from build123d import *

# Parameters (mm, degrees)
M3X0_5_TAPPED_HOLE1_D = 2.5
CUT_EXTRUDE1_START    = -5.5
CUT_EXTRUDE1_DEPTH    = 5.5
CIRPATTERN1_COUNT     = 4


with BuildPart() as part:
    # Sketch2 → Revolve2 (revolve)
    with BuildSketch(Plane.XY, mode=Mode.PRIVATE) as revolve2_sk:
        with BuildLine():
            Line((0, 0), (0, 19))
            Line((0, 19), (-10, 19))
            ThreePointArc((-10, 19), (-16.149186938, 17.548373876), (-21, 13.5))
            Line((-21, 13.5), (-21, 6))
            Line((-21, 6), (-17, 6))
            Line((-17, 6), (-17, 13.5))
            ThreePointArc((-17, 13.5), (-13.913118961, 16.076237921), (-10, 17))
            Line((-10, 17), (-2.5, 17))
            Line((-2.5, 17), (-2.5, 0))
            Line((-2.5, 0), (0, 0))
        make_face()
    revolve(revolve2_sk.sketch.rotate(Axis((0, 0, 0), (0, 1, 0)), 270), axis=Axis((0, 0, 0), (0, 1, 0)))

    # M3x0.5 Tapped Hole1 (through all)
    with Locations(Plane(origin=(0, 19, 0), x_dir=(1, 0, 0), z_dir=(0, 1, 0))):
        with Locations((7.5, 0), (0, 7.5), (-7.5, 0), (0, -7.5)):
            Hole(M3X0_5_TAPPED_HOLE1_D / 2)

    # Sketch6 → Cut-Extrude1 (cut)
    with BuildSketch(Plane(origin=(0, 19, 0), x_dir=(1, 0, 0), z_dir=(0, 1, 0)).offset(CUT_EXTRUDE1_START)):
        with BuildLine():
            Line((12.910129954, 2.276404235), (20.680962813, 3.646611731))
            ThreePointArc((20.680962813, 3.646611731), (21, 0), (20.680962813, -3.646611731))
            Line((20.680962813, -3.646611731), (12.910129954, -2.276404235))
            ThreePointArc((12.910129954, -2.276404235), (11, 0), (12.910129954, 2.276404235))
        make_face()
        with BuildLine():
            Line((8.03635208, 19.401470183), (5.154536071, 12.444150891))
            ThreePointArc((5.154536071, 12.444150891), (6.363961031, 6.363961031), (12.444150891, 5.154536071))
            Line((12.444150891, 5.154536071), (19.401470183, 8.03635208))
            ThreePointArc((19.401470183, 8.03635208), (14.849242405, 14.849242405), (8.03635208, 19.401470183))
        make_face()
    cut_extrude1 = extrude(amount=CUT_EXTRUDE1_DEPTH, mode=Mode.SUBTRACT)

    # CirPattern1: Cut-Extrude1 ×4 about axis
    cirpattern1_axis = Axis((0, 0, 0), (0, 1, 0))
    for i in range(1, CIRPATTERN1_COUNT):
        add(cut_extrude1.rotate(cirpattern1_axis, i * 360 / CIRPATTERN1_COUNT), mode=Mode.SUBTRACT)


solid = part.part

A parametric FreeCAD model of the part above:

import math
import FreeCAD as App
import Part
import Sketcher
from FreeCAD import Vector
Q = App.Units.Quantity

doc = App.newDocument("Part")
body = doc.addObject("PartDesign::Body", "Body")

# Sketch on XY plane
sketch1 = body.newObject("Sketcher::SketchObject", "Sketch")
sketch1.AttachmentSupport = (doc.getObject("XY_Plane"), [""])
sketch1.MapMode = "FlatFace"
sketch1.addGeometry(Part.LineSegment(Vector(0, 0, 0), Vector(0, 19, 0)), False)
sketch1.addGeometry(Part.LineSegment(Vector(0, 19, 0), Vector(-10, 19, 0)), False)
sketch1.addGeometry(Part.ArcOfCircle(Part.Circle(Vector(-10, 5.2, 0), Vector(0, 0, 1), 13.8), math.radians(90), math.radians(143)), False)
sketch1.addGeometry(Part.LineSegment(Vector(-21, 13.5, 0), Vector(-21, 6, 0)), False)
sketch1.addGeometry(Part.LineSegment(Vector(-21, 6, 0), Vector(-17, 6, 0)), False)
sketch1.addGeometry(Part.LineSegment(Vector(-17, 6, 0), Vector(-17, 13.5, 0)), False)
sketch1.addGeometry(Part.ArcOfCircle(Part.Circle(Vector(-10, 8.2, 0), Vector(0, 0, 1), 8.8), math.radians(90), math.radians(143)), False)
sketch1.addGeometry(Part.LineSegment(Vector(-10, 17, 0), Vector(-2.5, 17, 0)), False)
sketch1.addGeometry(Part.LineSegment(Vector(-2.5, 17, 0), Vector(-2.5, 0, 0)), False)
sketch1.addGeometry(Part.LineSegment(Vector(-2.5, 0, 0), Vector(0, 0, 0)), False)
sketch1.addConstraint(Sketcher.Constraint("Coincident", 0, 2, 1, 1))
sketch1.addConstraint(Sketcher.Constraint("Tangent", 1, 2, 2, 1))
sketch1.addConstraint(Sketcher.Constraint("Coincident", 2, 2, 3, 1))
sketch1.addConstraint(Sketcher.Constraint("Coincident", 3, 2, 4, 1))
sketch1.addConstraint(Sketcher.Constraint("Coincident", 4, 2, 5, 1))
sketch1.addConstraint(Sketcher.Constraint("Coincident", 5, 2, 6, 2))
sketch1.addConstraint(Sketcher.Constraint("Tangent", 6, 1, 7, 1))
sketch1.addConstraint(Sketcher.Constraint("Coincident", 7, 2, 8, 1))
sketch1.addConstraint(Sketcher.Constraint("Coincident", 8, 2, 9, 1))
sketch1.addConstraint(Sketcher.Constraint("Coincident", 9, 2, 0, 1))
sketch1.addConstraint(Sketcher.Constraint("Vertical", 0))
sketch1.addConstraint(Sketcher.Constraint("Horizontal", 1))
sketch1.addConstraint(Sketcher.Constraint("Vertical", 3))
sketch1.addConstraint(Sketcher.Constraint("Horizontal", 4))
sketch1.addConstraint(Sketcher.Constraint("Vertical", 5))
sketch1.addConstraint(Sketcher.Constraint("Horizontal", 7))
sketch1.addConstraint(Sketcher.Constraint("Vertical", 8))
sketch1.addConstraint(Sketcher.Constraint("Horizontal", 9))
sketch1.addConstraint(Sketcher.Constraint("Coincident", 9, 2, -1, 1))
sketch1.addConstraint(Sketcher.Constraint("Horizontal", 2, 2, 5, 2))
sketch1.addConstraint(Sketcher.Constraint("Vertical", 2, 3, 6, 3))
sketch1.addConstraint(Sketcher.Constraint("Equal", 7, 3))
sketch1.addConstraint(Sketcher.Constraint("DistanceX", 1, 2, 1, 1, Q("10 mm")))
sketch1.addConstraint(Sketcher.Constraint("DistanceX", 4, 1, 4, 2, Q("4 mm")))
sketch1.addConstraint(Sketcher.Constraint("DistanceY", 0, 1, 0, 2, Q("19 mm")))
sketch1.addConstraint(Sketcher.Constraint("DistanceY", 8, 2, 8, 1, Q("17 mm")))
sketch1.addConstraint(Sketcher.Constraint("Radius", 2, Q("13.75 mm")))
sketch1.addConstraint(Sketcher.Constraint("DistanceX", 7, 1, 7, 2, Q("7.5 mm")))
sketch1.addConstraint(Sketcher.Constraint("DistanceX", 2, 2, -1, 1, Q("21 mm")))
revolution = body.newObject("PartDesign::Revolution", "Revolution")
revolution.Profile = sketch1
revolution.ReferenceAxis = (sketch1, ["V_Axis"])
revolution.Angle = 360

# Sketch on XZ plane
sketch2 = body.newObject("Sketcher::SketchObject", "Sketch001")
sketch2.AttachmentSupport = (doc.getObject("XZ_Plane"), [""])
sketch2.MapMode = "FlatFace"
sketch2.AttachmentOffset = App.Placement(Vector(0, 0, -19), App.Rotation())
sketch2.addGeometry(Part.Circle(Vector(7.5, 0, 0), Vector(0, 0, 1), 1.2), False)
sketch2.addGeometry(Part.Circle(Vector(0, -7.5, 0), Vector(0, 0, 1), 1.2), False)
sketch2.addGeometry(Part.Circle(Vector(-7.5, 0, 0), Vector(0, 0, 1), 1.2), False)
sketch2.addGeometry(Part.Circle(Vector(0, 7.5, 0), Vector(0, 0, 1), 1.2), False)
sketch2.addConstraint(Sketcher.Constraint("Equal", 0, 1))
sketch2.addConstraint(Sketcher.Constraint("Equal", 1, 2))
sketch2.addConstraint(Sketcher.Constraint("Equal", 2, 3))
sketch2.addConstraint(Sketcher.Constraint("Symmetric", 0, 3, 2, 3, -1, 1))
sketch2.addConstraint(Sketcher.Constraint("Symmetric", 1, 3, 3, 3, -1, 1))
sketch2.addConstraint(Sketcher.Constraint("PointOnObject", 0, 3, -1))
sketch2.addConstraint(Sketcher.Constraint("PointOnObject", 1, 3, -2))
sketch2.addConstraint(Sketcher.Constraint("Diameter", 0, Q("2.5 mm")))
sketch2.addConstraint(Sketcher.Constraint("DistanceX", 2, 3, 0, 3, Q("15 mm")))
sketch2.addConstraint(Sketcher.Constraint("DistanceY", 1, 3, 3, 3, Q("15 mm")))
doc.recompute()
hole = body.newObject("PartDesign::Hole", "Hole")
hole.Profile = sketch2
hole.ThreadType = "None"
hole.Diameter = 2.5
hole.DepthType = "ThroughAll"
hole.Reversed = True

# Sketch on XZ plane
sketch3 = body.newObject("Sketcher::SketchObject", "Sketch002")
sketch3.AttachmentSupport = (doc.getObject("XZ_Plane"), [""])
sketch3.MapMode = "FlatFace"
sketch3.AttachmentOffset = App.Placement(Vector(0, 0, -13.5), App.Rotation())
sketch3.addGeometry(Part.LineSegment(Vector(20.7, -3.6, 0), Vector(12.9, -2.3, 0)), False)
sketch3.addGeometry(Part.ArcOfCircle(Part.Circle(Vector(13.3, 0, 0), Vector(0, 0, 1), 2.3), math.radians(100), math.radians(260)), False)
sketch3.addGeometry(Part.LineSegment(Vector(12.9, 2.3, 0), Vector(20.7, 3.6, 0)), False)
sketch3.addGeometry(Part.ArcOfCircle(Part.Circle(Vector(0, 0, 0), Vector(0, 0, 1), 21), math.radians(-10), math.radians(10)), False)
sketch3.addGeometry(Part.LineSegment(Vector(8, -19.4, 0), Vector(5.2, -12.4, 0)), False)
sketch3.addGeometry(Part.ArcOfCircle(Part.Circle(Vector(10.3, -10.3, 0), Vector(0, 0, 1), 5.6), math.radians(68), math.radians(202)), False)
sketch3.addGeometry(Part.LineSegment(Vector(12.4, -5.2, 0), Vector(19.4, -8, 0)), False)
sketch3.addGeometry(Part.ArcOfCircle(Part.Circle(Vector(0, 0, 0), Vector(0, 0, 1), 21), math.radians(-67), math.radians(-23)), False)
sketch3.addConstraint(Sketcher.Constraint("Tangent", 0, 2, 1, 2))
sketch3.addConstraint(Sketcher.Constraint("Tangent", 1, 1, 2, 1))
sketch3.addConstraint(Sketcher.Constraint("Coincident", 2, 2, 3, 2))
sketch3.addConstraint(Sketcher.Constraint("Coincident", 3, 1, 0, 1))
sketch3.addConstraint(Sketcher.Constraint("Tangent", 4, 2, 5, 2))
sketch3.addConstraint(Sketcher.Constraint("Tangent", 5, 1, 6, 1))
sketch3.addConstraint(Sketcher.Constraint("Coincident", 6, 2, 7, 2))
sketch3.addConstraint(Sketcher.Constraint("Coincident", 7, 1, 4, 1))
sketch3.addConstraint(Sketcher.Constraint("Coincident", 3, 3, -1, 1))
sketch3.addConstraint(Sketcher.Constraint("Coincident", 7, 3, -1, 1))
sketch3.addConstraint(Sketcher.Constraint("Equal", 3, 7))
sketch3.addConstraint(Sketcher.Constraint("Symmetric", 0, 2, 1, 1, -1))
sketch3.addConstraint(Sketcher.Constraint("Equal", 4, 6))
sketch3.addConstraint(Sketcher.Constraint("Radius", 3, Q("21 mm")))
sketch3.addConstraint(Sketcher.Constraint("Angle", 0, Q("170 deg")))
sketch3.addConstraint(Sketcher.Constraint("Angle", 4, Q("112.5 deg")))
sketch3.addConstraint(Sketcher.Constraint("Angle", 6, Q("-22.5 deg")))
sketch3.addConstraint(Sketcher.Constraint("Radius", 1, Q("2.311521 mm")))
sketch3.addConstraint(Sketcher.Constraint("Radius", 5, Q("5.57923 mm")))
sketch3.addConstraint(Sketcher.Constraint("DistanceX", 5, 3, 6, 2, Q("9.092398 mm")))
sketch3.addConstraint(Sketcher.Constraint("Distance", 0, Q("7.89071 mm")))
pocket1 = body.newObject("PartDesign::Pocket", "Pocket")
pocket1.Profile = sketch3
pocket1.Length = 5.5
doc.recompute()

polarpattern = body.newObject("PartDesign::PolarPattern", "PolarPattern")
polarpattern.Originals = [pocket1]
polarpattern.Axis = (doc.getObject("Y_Axis"), [""])
polarpattern.Angle = 360
polarpattern.Occurrences = 4
body.Tip = polarpattern

doc.recompute()
